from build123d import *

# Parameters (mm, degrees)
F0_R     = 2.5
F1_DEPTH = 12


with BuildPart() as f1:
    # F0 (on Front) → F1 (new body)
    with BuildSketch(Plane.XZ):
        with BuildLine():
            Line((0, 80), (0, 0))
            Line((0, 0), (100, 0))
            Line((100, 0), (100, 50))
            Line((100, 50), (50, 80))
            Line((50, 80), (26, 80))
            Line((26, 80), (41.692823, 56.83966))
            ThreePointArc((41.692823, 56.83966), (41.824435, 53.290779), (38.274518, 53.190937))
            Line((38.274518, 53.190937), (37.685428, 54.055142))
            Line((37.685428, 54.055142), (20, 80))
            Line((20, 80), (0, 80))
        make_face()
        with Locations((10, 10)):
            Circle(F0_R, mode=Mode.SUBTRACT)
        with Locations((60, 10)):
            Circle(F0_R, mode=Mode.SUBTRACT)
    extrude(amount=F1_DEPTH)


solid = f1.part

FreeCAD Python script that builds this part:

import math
import FreeCAD as App
import Part
import Sketcher

V = App.Vector
Q = App.Units.Quantity

doc = App.newDocument("Part")
body = doc.addObject("PartDesign::Body", "Body")

# Sketch on XZ plane
sketch1 = body.newObject("Sketcher::SketchObject", "Sketch")
sketch1.AttachmentSupport = (doc.getObject("XZ_Plane"), [""])
sketch1.MapMode = "FlatFace"
sketch1.addGeometry(Part.LineSegment(V(0, 80, 0), V(0, 0, 0)), False)
sketch1.addGeometry(Part.LineSegment(V(0, 0, 0), V(100, 0, 0)), False)
sketch1.addGeometry(Part.LineSegment(V(100, 0, 0), V(100, 50, 0)), False)
sketch1.addGeometry(Part.LineSegment(V(100, 50, 0), V(50, 80, 0)), False)
sketch1.addGeometry(Part.LineSegment(V(50, 80, 0), V(26, 80, 0)), False)
sketch1.addGeometry(Part.LineSegment(V(26, 80, 0), V(41.7, 56.8, 0)), False)
sketch1.addGeometry(Part.ArcOfCircle(Part.Circle(V(40, 55, 0), V(0, 0, 1), 2.5), math.radians(-134), math.radians(47)), False)
sketch1.addGeometry(Part.LineSegment(V(38.3, 53.2, 0), V(37.7, 54.1, 0)), False)
sketch1.addGeometry(Part.LineSegment(V(37.7, 54.1, 0), V(20, 80, 0)), False)
sketch1.addGeometry(Part.LineSegment(V(20, 80, 0), V(0, 80, 0)), False)
sketch1.addGeometry(Part.Circle(V(10, 10, 0), V(0, 0, 1), 2.5), False)
sketch1.addGeometry(Part.Circle(V(60, 10, 0), V(0, 0, 1), 2.5), False)
sketch1.addConstraint(Sketcher.Constraint("Coincident", 0, 2, 1, 1))
sketch1.addConstraint(Sketcher.Constraint("Coincident", 1, 2, 2, 1))
sketch1.addConstraint(Sketcher.Constraint("Coincident", 2, 2, 3, 1))
sketch1.addConstraint(Sketcher.Constraint("Coincident", 3, 2, 4, 1))
sketch1.addConstraint(Sketcher.Constraint("Coincident", 4, 2, 5, 1))
sketch1.addConstraint(Sketcher.Constraint("Coincident", 5, 2, 6, 2))
sketch1.addConstraint(Sketcher.Constraint("Coincident", 6, 1, 7, 1))
sketch1.addConstraint(Sketcher.Constraint("Coincident", 7, 2, 8, 1))
sketch1.addConstraint(Sketcher.Constraint("Coincident", 8, 2, 9, 1))
sketch1.addConstraint(Sketcher.Constraint("Coincident", 9, 2, 0, 1))
sketch1.addConstraint(Sketcher.Constraint("Vertical", 0))
sketch1.addConstraint(Sketcher.Constraint("Horizontal", 1))
sketch1.addConstraint(Sketcher.Constraint("Vertical", 2))
sketch1.addConstraint(Sketcher.Constraint("Horizontal", 4))
sketch1.addConstraint(Sketcher.Constraint("Horizontal", 9))
sketch1.addConstraint(Sketcher.Constraint("Coincident", 0, 2, -1, 1))
sketch1.addConstraint(Sketcher.Constraint("Equal", 6, 10))
sketch1.addConstraint(Sketcher.Constraint("Equal", 10, 11))
sketch1.addConstraint(Sketcher.Constraint("Parallel", 7, 8))
sketch1.addConstraint(Sketcher.Constraint("Horizontal", 10, 3, 11, 3))
sketch1.addConstraint(Sketcher.Constraint("Horizontal", 4, 2, 8, 2))
sketch1.addConstraint(Sketcher.Constraint("Diameter", 10, Q("5 mm")))
sketch1.addConstraint(Sketcher.Constraint("DistanceX", 1, 1, 1, 2, Q("100 mm")))
sketch1.addConstraint(Sketcher.Constraint("DistanceX", 4, 2, 4, 1, Q("24 mm")))
sketch1.addConstraint(Sketcher.Constraint("DistanceX", 9, 2, 9, 1, Q("20 mm")))
sketch1.addConstraint(Sketcher.Constraint("DistanceY", 0, 2, 0, 1, Q("80 mm")))
sketch1.addConstraint(Sketcher.Constraint("DistanceY", 2, 1, 2, 2, Q("50 mm")))
sketch1.addConstraint(Sketcher.Constraint("DistanceX", -1, 1, 6, 3, Q("40 mm")))
sketch1.addConstraint(Sketcher.Constraint("DistanceY", -1, 1, 6, 3, Q("55 mm")))
sketch1.addConstraint(Sketcher.Constraint("DistanceX", -1, 1, 10, 3, Q("10 mm")))
sketch1.addConstraint(Sketcher.Constraint("DistanceY", -1, 1, 10, 3, Q("10 mm")))
sketch1.addConstraint(Sketcher.Constraint("DistanceX", -1, 1, 11, 3, Q("60 mm")))
sketch1.addConstraint(Sketcher.Constraint("DistanceX", -1, 1, 3, 2, Q("50 mm")))
sketch1.addConstraint(Sketcher.Constraint("Distance", 5, Q("27.976169 mm")))
sketch1.addConstraint(Sketcher.Constraint("DistanceX", -1, 1, 6, 1, Q("38.274518 mm")))
sketch1.addConstraint(Sketcher.Constraint("DistanceX", -1, 1, 7, 2, Q("37.685428 mm")))
pad1 = body.newObject("PartDesign::Pad", "Pad")
pad1.Profile = sketch1
pad1.Length = 12

doc.recompute()
